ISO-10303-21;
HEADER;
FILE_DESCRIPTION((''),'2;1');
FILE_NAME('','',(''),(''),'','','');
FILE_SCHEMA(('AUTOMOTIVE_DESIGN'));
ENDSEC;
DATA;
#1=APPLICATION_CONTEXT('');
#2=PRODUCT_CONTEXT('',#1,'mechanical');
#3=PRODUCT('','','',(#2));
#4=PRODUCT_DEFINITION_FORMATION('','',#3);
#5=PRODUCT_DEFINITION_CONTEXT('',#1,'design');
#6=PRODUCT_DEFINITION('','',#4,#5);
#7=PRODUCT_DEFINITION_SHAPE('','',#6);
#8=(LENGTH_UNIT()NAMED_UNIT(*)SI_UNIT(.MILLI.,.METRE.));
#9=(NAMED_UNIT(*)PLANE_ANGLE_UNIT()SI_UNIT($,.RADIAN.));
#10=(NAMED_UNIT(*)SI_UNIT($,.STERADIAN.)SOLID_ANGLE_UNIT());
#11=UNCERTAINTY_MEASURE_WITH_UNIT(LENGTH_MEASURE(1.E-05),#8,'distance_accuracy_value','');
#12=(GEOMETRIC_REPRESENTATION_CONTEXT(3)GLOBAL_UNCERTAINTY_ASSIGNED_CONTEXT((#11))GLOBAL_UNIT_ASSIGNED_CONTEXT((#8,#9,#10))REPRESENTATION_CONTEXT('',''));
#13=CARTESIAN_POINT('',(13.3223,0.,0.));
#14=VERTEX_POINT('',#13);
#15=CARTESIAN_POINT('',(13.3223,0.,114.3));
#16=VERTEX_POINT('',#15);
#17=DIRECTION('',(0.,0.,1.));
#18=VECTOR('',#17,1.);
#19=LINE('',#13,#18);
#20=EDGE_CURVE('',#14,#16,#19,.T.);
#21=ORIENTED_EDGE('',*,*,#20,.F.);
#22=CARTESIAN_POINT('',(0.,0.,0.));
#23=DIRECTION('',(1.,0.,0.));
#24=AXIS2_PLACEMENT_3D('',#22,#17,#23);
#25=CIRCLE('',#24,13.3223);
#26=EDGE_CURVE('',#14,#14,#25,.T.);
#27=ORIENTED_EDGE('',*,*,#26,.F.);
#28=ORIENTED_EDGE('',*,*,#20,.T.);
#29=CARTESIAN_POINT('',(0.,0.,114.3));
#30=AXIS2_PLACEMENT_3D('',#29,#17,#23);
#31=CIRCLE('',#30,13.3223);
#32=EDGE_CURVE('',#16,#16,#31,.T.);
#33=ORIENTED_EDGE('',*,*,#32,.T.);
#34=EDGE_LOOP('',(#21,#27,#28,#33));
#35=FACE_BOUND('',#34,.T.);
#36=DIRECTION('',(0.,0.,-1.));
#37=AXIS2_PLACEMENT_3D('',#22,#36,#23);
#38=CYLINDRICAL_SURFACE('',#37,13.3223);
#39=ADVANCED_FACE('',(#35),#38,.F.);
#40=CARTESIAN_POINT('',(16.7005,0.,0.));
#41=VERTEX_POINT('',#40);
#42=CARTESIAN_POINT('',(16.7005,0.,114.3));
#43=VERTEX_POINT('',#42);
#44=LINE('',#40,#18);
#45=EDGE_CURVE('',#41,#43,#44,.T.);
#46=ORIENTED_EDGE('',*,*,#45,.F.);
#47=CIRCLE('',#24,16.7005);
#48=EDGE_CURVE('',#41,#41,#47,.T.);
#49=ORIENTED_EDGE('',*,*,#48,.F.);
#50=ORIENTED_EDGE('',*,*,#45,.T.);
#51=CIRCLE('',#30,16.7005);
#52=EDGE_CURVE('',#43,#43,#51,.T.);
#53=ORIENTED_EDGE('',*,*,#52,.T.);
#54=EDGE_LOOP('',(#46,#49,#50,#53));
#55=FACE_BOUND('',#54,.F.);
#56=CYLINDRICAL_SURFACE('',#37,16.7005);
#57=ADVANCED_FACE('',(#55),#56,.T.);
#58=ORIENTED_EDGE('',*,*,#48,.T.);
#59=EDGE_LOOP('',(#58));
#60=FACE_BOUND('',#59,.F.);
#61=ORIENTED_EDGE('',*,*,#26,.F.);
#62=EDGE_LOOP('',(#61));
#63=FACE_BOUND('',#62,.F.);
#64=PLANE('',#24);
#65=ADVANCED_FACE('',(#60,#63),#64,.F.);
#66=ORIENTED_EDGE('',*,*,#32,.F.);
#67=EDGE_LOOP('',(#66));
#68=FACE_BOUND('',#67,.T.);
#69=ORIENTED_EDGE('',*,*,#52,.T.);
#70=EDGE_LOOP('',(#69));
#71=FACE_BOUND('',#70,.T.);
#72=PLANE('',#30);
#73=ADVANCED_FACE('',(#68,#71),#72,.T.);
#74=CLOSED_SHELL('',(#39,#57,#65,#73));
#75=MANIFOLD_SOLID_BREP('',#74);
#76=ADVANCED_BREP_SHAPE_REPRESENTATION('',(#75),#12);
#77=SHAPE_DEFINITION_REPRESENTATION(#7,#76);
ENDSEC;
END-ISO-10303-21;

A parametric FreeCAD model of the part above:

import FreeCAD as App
import Part
import Sketcher
from FreeCAD import Vector
Q = App.Units.Quantity

doc = App.newDocument("Part")
body = doc.addObject("PartDesign::Body", "Body")

sketch1 = body.newObject("Sketcher::SketchObject", "Sketch")
sketch1.AttachmentSupport = (doc.getObject("XY_Plane"), [""])
sketch1.MapMode = "FlatFace"
sketch1.addGeometry(Part.Circle(Vector(0, 0, 0), Vector(0, 0, 1), 17), False)
sketch1.addGeometry(Part.Circle(Vector(0, 0, 0), Vector(0, 0, 1), 13), False)
sketch1.addConstraint(Sketcher.Constraint("Coincident", 0, 3, -1, 1))
sketch1.addConstraint(Sketcher.Constraint("Coincident", 1, 3, -1, 1))
sketch1.addConstraint(Sketcher.Constraint("Diameter", 0, Q("1.315 in")))
sketch1.addConstraint(Sketcher.Constraint("Diameter", 1, Q("1.049 in")))
pad1 = body.newObject("PartDesign::Pad", "Pad")
pad1.Profile = sketch1
pad1.Length = Q("4.5 in")

doc.recompute()
